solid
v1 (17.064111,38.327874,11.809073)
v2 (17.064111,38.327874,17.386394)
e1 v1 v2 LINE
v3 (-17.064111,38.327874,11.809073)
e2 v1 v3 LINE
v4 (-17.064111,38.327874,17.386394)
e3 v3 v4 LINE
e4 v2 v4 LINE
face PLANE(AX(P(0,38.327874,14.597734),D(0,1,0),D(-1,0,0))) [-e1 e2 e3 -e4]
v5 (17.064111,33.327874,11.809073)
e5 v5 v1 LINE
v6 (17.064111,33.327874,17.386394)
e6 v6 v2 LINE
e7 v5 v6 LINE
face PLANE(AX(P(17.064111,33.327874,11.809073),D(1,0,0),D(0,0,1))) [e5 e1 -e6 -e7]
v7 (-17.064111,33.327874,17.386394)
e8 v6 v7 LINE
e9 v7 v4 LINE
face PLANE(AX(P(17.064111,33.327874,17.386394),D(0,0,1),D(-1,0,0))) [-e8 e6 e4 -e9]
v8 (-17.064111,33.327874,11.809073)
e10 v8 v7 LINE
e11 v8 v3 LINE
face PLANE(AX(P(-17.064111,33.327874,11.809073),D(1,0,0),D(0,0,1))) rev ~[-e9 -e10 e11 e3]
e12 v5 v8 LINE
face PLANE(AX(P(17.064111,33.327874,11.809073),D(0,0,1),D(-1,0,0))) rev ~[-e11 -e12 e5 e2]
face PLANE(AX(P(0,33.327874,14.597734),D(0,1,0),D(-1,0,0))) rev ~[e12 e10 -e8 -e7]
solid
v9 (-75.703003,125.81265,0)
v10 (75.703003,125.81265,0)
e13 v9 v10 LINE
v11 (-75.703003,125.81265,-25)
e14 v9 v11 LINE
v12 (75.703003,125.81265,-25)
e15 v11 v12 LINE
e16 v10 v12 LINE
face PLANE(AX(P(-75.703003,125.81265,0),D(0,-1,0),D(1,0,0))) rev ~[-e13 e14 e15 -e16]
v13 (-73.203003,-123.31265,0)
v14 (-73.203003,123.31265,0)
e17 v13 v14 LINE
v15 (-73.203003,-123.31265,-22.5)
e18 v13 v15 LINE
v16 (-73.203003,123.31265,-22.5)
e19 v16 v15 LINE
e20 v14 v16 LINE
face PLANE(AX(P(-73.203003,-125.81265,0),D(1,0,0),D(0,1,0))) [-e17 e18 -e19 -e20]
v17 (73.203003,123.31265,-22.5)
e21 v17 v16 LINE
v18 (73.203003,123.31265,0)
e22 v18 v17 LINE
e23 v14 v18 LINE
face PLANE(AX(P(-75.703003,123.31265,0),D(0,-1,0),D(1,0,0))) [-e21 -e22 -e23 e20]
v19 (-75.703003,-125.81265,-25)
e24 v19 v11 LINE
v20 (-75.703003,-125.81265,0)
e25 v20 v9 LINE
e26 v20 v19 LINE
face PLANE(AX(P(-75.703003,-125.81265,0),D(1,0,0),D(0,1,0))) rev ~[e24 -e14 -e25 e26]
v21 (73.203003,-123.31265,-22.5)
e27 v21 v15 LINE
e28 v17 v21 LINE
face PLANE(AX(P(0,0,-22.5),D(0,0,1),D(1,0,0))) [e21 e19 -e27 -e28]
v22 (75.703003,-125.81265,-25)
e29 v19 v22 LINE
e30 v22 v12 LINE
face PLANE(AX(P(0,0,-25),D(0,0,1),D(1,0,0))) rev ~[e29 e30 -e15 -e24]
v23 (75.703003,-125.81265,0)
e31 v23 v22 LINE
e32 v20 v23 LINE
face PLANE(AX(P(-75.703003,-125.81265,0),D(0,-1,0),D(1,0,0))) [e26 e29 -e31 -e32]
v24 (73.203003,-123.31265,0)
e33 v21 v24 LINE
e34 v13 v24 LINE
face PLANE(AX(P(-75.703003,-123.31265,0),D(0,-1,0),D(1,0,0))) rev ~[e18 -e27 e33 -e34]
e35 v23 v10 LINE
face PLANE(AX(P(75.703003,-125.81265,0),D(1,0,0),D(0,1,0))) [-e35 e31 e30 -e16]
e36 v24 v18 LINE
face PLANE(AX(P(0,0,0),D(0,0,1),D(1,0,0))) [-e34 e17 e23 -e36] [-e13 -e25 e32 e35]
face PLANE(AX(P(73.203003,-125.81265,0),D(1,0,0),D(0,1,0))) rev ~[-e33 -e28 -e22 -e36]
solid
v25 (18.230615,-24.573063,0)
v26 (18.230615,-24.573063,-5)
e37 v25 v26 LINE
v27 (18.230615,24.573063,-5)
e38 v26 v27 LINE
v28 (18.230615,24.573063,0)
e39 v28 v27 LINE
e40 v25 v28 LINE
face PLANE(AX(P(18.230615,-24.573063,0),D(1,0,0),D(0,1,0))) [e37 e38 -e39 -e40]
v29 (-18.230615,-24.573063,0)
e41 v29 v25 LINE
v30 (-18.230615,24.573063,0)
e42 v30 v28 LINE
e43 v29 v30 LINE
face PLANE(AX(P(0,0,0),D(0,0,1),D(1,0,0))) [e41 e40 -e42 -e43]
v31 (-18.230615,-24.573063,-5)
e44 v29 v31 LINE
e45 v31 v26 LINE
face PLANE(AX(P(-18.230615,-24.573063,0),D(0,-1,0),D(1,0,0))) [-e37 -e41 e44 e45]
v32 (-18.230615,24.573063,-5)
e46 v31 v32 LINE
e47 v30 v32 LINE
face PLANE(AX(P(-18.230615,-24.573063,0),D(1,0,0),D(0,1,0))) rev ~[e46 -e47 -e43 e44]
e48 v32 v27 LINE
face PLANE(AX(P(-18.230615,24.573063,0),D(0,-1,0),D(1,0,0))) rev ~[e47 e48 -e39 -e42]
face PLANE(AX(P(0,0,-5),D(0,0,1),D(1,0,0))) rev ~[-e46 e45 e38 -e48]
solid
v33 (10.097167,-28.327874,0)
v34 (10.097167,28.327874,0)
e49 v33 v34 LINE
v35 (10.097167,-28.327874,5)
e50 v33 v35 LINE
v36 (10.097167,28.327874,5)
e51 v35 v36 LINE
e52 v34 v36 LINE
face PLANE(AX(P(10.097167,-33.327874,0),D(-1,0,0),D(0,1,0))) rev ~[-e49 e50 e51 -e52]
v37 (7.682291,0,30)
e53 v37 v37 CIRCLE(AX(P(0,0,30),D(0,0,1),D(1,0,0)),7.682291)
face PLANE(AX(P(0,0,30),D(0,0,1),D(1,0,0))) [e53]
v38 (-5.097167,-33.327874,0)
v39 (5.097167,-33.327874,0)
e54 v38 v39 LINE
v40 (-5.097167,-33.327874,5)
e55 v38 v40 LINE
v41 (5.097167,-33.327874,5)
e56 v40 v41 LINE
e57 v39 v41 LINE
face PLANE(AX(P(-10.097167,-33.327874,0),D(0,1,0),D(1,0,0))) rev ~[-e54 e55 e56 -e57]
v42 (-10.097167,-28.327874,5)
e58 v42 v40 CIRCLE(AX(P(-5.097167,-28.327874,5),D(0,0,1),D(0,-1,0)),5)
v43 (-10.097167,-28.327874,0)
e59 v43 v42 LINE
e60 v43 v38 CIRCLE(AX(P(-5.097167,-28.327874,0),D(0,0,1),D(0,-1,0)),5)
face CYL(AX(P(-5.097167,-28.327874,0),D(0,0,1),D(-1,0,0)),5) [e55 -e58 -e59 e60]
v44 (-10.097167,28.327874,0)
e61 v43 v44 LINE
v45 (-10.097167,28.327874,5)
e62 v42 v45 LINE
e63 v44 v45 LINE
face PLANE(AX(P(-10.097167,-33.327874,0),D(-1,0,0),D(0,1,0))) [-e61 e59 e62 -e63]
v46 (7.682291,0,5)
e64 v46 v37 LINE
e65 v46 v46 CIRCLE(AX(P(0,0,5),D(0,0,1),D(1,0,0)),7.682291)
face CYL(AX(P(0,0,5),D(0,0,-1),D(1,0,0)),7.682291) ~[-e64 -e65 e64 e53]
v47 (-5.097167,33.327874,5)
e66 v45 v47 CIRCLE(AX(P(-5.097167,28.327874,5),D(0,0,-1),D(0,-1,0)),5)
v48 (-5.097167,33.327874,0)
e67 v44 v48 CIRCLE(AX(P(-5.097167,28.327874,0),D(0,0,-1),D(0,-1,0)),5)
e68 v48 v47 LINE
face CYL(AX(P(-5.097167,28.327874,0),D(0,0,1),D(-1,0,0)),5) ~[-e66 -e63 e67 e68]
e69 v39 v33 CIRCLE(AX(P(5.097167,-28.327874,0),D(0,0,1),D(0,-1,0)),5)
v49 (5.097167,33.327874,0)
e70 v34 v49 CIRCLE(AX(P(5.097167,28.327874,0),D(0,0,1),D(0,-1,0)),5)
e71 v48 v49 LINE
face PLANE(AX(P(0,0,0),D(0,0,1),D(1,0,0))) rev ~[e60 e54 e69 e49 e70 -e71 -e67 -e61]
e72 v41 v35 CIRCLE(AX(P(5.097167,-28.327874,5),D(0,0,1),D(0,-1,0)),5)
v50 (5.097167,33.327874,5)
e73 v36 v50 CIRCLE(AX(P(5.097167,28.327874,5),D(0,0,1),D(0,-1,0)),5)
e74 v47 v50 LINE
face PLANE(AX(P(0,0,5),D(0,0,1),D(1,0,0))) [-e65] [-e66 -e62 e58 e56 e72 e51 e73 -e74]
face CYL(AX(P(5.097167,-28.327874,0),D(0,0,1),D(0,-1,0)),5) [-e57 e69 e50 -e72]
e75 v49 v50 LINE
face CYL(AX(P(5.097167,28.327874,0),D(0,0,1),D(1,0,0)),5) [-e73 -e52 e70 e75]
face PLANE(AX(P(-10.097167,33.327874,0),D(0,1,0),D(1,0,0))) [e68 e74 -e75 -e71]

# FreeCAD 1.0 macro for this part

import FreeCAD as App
import Part
import Sketcher

V = App.Vector
Q = App.Units.Quantity


def edges_at(feature, points):
    """Names of the edges that pass closest to the given points."""
    edges = feature.Shape.Edges
    near = lambda p: min(range(len(edges)), key=lambda i: edges[i].distToShape(Part.Vertex(*p))[0])
    return sorted({f"Edge{near(p) + 1}" for p in points})


def faces_at(feature, points):
    """Names of the faces that lie closest to the given points."""
    faces = feature.Shape.Faces
    near = lambda p: min(range(len(faces)), key=lambda i: faces[i].distToShape(Part.Vertex(*p))[0])
    return sorted({f"Face{near(p) + 1}" for p in points})


def add_polygon(sketch, points):
    """Adds a closed chain of lines whose ends are joined by coincident constraints."""
    first, n = sketch.GeometryCount, len(points)
    for a, b in zip(points, points[1:] + points[:1]):
        sketch.addGeometry(Part.LineSegment(App.Vector(*a, 0), App.Vector(*b, 0)), False)
    for i in range(n):
        sketch.addConstraint(Sketcher.Constraint("Coincident", first + i, 2, first + (i + 1) % n, 1))

doc = App.newDocument("Part")
body = doc.addObject("PartDesign::Body", "Body")

# Sketch on XY plane
sketch1 = body.newObject("Sketcher::SketchObject", "Sketch")
sketch1.AttachmentSupport = (doc.getObject("XY_Plane"), [""])
sketch1.MapMode = "FlatFace"
add_polygon(sketch1, [(-18, 25), (-18, -25), (18, -25), (18, 25)])  # lines 0-3
sketch1.addConstraint([
    Sketcher.Constraint("Vertical", 0),
    Sketcher.Constraint("Horizontal", 1),
    Sketcher.Constraint("Vertical", 2),
    Sketcher.Constraint("Horizontal", 3),
    Sketcher.Constraint("Symmetric", 0, 2, 2, 2, -1, 1),
    Sketcher.Constraint("DistanceX", 1, 1, 1, 2, Q("36.46123 mm")),
    Sketcher.Constraint("DistanceY", 0, 2, 0, 1, Q("49.146127 mm")),
])
pad1 = body.newObject("PartDesign::Pad", "Pad")
pad1.Profile = sketch1
pad1.Length = 5
pad1.Reversed = True
body2 = doc.addObject("PartDesign::Body", "Body001")

# Sketch on XY plane
sketch2 = body2.newObject("Sketcher::SketchObject", "Sketch001")
sketch2.AttachmentSupport = (doc.getObject("XY_Plane001"), [""])
sketch2.MapMode = "FlatFace"
add_polygon(sketch2, [(-10, 33), (-10, -33), (10, -33), (10, 33)])  # lines 0-3
sketch2.addConstraint([
    Sketcher.Constraint("Vertical", 0),
    Sketcher.Constraint("Horizontal", 1),
    Sketcher.Constraint("Vertical", 2),
    Sketcher.Constraint("Horizontal", 3),
    Sketcher.Constraint("Symmetric", 0, 2, 2, 2, -1, 1),
    Sketcher.Constraint("DistanceX", 1, 1, 1, 2, Q("20.194333 mm")),
    Sketcher.Constraint("DistanceY", 0, 2, 0, 1, Q("66.655748 mm")),
])
pad2 = body2.newObject("PartDesign::Pad", "Pad001")
pad2.Profile = sketch2
pad2.Length = 5
doc.recompute()

fillet = body2.newObject("PartDesign::Fillet", "Fillet")
fillet.Base = (pad2, edges_at(pad2, [
    (-10.097, -33.328, 2.5),
    (10.097, -33.328, 2.5),
    (10.097, 33.328, 2.5),
    (-10.097, 33.328, 2.5),
]))
fillet.Radius = 5

# Sketch on XY plane
sketch3 = body2.newObject("Sketcher::SketchObject", "Sketch002")
sketch3.AttachmentSupport = (doc.getObject("XY_Plane001"), [""])
sketch3.MapMode = "FlatFace"
sketch3.AttachmentOffset = App.Placement(V(0, 0, 5), App.Rotation())
sketch3.addGeometry(Part.Circle(V(0, 0, 0), V(0, 0, 1), 8), False)
sketch3.addConstraint([
    Sketcher.Constraint("Coincident", 0, 3, -1, 1),
    Sketcher.Constraint("Diameter", 0, Q("15.364583 mm")),
])
pad3 = body2.newObject("PartDesign::Pad", "Pad002")
pad3.Profile = sketch3
pad3.Length = 25
body3 = doc.addObject("PartDesign::Body", "Body002")

# Sketch on XZ plane
sketch4 = body3.newObject("Sketcher::SketchObject", "Sketch003")
sketch4.AttachmentSupport = (doc.getObject("XZ_Plane002"), [""])
sketch4.MapMode = "FlatFace"
sketch4.AttachmentOffset = App.Placement(V(0, 0, -33.327874), App.Rotation())
add_polygon(sketch4, [(17, 17), (17, 12), (-17, 12), (-17, 17)])  # lines 0-3
sketch4.addConstraint([
    Sketcher.Constraint("Vertical", 0),
    Sketcher.Constraint("Horizontal", 1),
    Sketcher.Constraint("Vertical", 2),
    Sketcher.Constraint("Horizontal", 3),
    Sketcher.Constraint("DistanceY", 0, 2, 0, 1, Q("5.57732 mm")),
    Sketcher.Constraint("DistanceX", 1, 2, 1, 1, Q("34.128223 mm")),
    Sketcher.Constraint("DistanceX", -1, 1, 0, 2, Q("17.064111 mm")),
    Sketcher.Constraint("DistanceY", -1, 1, 0, 2, Q("11.809073 mm")),
])
pad4 = body3.newObject("PartDesign::Pad", "Pad003")
pad4.Profile = sketch4
pad4.Length = 5
pad4.Reversed = True
body4 = doc.addObject("PartDesign::Body", "Body003")

# Sketch on XY plane
sketch5 = body4.newObject("Sketcher::SketchObject", "Sketch004")
sketch5.AttachmentSupport = (doc.getObject("XY_Plane003"), [""])
sketch5.MapMode = "FlatFace"
add_polygon(sketch5, [(-76, 126), (-76, -126), (76, -126), (76, 126)])  # lines 0-3
sketch5.addConstraint([
    Sketcher.Constraint("Vertical", 0),
    Sketcher.Constraint("Horizontal", 1),
    Sketcher.Constraint("Vertical", 2),
    Sketcher.Constraint("Horizontal", 3),
    Sketcher.Constraint("Symmetric", 0, 2, 2, 2, -1, 1),
    Sketcher.Constraint("DistanceY", 0, 2, 0, 1, Q("251.625299 mm")),
    Sketcher.Constraint("DistanceX", 1, 1, 1, 2, Q("151.406005 mm")),
])
pad5 = body4.newObject("PartDesign::Pad", "Pad004")
pad5.Profile = sketch5
pad5.Length = 25
pad5.Reversed = True
doc.recompute()

thickness = body4.newObject("PartDesign::Thickness", "Thickness")
thickness.Base = (pad5, faces_at(pad5, [(0, 0, 0)]))
thickness.Value = 2.5
thickness.Reversed = True
thickness.Join = "Arc"

doc.recompute()
